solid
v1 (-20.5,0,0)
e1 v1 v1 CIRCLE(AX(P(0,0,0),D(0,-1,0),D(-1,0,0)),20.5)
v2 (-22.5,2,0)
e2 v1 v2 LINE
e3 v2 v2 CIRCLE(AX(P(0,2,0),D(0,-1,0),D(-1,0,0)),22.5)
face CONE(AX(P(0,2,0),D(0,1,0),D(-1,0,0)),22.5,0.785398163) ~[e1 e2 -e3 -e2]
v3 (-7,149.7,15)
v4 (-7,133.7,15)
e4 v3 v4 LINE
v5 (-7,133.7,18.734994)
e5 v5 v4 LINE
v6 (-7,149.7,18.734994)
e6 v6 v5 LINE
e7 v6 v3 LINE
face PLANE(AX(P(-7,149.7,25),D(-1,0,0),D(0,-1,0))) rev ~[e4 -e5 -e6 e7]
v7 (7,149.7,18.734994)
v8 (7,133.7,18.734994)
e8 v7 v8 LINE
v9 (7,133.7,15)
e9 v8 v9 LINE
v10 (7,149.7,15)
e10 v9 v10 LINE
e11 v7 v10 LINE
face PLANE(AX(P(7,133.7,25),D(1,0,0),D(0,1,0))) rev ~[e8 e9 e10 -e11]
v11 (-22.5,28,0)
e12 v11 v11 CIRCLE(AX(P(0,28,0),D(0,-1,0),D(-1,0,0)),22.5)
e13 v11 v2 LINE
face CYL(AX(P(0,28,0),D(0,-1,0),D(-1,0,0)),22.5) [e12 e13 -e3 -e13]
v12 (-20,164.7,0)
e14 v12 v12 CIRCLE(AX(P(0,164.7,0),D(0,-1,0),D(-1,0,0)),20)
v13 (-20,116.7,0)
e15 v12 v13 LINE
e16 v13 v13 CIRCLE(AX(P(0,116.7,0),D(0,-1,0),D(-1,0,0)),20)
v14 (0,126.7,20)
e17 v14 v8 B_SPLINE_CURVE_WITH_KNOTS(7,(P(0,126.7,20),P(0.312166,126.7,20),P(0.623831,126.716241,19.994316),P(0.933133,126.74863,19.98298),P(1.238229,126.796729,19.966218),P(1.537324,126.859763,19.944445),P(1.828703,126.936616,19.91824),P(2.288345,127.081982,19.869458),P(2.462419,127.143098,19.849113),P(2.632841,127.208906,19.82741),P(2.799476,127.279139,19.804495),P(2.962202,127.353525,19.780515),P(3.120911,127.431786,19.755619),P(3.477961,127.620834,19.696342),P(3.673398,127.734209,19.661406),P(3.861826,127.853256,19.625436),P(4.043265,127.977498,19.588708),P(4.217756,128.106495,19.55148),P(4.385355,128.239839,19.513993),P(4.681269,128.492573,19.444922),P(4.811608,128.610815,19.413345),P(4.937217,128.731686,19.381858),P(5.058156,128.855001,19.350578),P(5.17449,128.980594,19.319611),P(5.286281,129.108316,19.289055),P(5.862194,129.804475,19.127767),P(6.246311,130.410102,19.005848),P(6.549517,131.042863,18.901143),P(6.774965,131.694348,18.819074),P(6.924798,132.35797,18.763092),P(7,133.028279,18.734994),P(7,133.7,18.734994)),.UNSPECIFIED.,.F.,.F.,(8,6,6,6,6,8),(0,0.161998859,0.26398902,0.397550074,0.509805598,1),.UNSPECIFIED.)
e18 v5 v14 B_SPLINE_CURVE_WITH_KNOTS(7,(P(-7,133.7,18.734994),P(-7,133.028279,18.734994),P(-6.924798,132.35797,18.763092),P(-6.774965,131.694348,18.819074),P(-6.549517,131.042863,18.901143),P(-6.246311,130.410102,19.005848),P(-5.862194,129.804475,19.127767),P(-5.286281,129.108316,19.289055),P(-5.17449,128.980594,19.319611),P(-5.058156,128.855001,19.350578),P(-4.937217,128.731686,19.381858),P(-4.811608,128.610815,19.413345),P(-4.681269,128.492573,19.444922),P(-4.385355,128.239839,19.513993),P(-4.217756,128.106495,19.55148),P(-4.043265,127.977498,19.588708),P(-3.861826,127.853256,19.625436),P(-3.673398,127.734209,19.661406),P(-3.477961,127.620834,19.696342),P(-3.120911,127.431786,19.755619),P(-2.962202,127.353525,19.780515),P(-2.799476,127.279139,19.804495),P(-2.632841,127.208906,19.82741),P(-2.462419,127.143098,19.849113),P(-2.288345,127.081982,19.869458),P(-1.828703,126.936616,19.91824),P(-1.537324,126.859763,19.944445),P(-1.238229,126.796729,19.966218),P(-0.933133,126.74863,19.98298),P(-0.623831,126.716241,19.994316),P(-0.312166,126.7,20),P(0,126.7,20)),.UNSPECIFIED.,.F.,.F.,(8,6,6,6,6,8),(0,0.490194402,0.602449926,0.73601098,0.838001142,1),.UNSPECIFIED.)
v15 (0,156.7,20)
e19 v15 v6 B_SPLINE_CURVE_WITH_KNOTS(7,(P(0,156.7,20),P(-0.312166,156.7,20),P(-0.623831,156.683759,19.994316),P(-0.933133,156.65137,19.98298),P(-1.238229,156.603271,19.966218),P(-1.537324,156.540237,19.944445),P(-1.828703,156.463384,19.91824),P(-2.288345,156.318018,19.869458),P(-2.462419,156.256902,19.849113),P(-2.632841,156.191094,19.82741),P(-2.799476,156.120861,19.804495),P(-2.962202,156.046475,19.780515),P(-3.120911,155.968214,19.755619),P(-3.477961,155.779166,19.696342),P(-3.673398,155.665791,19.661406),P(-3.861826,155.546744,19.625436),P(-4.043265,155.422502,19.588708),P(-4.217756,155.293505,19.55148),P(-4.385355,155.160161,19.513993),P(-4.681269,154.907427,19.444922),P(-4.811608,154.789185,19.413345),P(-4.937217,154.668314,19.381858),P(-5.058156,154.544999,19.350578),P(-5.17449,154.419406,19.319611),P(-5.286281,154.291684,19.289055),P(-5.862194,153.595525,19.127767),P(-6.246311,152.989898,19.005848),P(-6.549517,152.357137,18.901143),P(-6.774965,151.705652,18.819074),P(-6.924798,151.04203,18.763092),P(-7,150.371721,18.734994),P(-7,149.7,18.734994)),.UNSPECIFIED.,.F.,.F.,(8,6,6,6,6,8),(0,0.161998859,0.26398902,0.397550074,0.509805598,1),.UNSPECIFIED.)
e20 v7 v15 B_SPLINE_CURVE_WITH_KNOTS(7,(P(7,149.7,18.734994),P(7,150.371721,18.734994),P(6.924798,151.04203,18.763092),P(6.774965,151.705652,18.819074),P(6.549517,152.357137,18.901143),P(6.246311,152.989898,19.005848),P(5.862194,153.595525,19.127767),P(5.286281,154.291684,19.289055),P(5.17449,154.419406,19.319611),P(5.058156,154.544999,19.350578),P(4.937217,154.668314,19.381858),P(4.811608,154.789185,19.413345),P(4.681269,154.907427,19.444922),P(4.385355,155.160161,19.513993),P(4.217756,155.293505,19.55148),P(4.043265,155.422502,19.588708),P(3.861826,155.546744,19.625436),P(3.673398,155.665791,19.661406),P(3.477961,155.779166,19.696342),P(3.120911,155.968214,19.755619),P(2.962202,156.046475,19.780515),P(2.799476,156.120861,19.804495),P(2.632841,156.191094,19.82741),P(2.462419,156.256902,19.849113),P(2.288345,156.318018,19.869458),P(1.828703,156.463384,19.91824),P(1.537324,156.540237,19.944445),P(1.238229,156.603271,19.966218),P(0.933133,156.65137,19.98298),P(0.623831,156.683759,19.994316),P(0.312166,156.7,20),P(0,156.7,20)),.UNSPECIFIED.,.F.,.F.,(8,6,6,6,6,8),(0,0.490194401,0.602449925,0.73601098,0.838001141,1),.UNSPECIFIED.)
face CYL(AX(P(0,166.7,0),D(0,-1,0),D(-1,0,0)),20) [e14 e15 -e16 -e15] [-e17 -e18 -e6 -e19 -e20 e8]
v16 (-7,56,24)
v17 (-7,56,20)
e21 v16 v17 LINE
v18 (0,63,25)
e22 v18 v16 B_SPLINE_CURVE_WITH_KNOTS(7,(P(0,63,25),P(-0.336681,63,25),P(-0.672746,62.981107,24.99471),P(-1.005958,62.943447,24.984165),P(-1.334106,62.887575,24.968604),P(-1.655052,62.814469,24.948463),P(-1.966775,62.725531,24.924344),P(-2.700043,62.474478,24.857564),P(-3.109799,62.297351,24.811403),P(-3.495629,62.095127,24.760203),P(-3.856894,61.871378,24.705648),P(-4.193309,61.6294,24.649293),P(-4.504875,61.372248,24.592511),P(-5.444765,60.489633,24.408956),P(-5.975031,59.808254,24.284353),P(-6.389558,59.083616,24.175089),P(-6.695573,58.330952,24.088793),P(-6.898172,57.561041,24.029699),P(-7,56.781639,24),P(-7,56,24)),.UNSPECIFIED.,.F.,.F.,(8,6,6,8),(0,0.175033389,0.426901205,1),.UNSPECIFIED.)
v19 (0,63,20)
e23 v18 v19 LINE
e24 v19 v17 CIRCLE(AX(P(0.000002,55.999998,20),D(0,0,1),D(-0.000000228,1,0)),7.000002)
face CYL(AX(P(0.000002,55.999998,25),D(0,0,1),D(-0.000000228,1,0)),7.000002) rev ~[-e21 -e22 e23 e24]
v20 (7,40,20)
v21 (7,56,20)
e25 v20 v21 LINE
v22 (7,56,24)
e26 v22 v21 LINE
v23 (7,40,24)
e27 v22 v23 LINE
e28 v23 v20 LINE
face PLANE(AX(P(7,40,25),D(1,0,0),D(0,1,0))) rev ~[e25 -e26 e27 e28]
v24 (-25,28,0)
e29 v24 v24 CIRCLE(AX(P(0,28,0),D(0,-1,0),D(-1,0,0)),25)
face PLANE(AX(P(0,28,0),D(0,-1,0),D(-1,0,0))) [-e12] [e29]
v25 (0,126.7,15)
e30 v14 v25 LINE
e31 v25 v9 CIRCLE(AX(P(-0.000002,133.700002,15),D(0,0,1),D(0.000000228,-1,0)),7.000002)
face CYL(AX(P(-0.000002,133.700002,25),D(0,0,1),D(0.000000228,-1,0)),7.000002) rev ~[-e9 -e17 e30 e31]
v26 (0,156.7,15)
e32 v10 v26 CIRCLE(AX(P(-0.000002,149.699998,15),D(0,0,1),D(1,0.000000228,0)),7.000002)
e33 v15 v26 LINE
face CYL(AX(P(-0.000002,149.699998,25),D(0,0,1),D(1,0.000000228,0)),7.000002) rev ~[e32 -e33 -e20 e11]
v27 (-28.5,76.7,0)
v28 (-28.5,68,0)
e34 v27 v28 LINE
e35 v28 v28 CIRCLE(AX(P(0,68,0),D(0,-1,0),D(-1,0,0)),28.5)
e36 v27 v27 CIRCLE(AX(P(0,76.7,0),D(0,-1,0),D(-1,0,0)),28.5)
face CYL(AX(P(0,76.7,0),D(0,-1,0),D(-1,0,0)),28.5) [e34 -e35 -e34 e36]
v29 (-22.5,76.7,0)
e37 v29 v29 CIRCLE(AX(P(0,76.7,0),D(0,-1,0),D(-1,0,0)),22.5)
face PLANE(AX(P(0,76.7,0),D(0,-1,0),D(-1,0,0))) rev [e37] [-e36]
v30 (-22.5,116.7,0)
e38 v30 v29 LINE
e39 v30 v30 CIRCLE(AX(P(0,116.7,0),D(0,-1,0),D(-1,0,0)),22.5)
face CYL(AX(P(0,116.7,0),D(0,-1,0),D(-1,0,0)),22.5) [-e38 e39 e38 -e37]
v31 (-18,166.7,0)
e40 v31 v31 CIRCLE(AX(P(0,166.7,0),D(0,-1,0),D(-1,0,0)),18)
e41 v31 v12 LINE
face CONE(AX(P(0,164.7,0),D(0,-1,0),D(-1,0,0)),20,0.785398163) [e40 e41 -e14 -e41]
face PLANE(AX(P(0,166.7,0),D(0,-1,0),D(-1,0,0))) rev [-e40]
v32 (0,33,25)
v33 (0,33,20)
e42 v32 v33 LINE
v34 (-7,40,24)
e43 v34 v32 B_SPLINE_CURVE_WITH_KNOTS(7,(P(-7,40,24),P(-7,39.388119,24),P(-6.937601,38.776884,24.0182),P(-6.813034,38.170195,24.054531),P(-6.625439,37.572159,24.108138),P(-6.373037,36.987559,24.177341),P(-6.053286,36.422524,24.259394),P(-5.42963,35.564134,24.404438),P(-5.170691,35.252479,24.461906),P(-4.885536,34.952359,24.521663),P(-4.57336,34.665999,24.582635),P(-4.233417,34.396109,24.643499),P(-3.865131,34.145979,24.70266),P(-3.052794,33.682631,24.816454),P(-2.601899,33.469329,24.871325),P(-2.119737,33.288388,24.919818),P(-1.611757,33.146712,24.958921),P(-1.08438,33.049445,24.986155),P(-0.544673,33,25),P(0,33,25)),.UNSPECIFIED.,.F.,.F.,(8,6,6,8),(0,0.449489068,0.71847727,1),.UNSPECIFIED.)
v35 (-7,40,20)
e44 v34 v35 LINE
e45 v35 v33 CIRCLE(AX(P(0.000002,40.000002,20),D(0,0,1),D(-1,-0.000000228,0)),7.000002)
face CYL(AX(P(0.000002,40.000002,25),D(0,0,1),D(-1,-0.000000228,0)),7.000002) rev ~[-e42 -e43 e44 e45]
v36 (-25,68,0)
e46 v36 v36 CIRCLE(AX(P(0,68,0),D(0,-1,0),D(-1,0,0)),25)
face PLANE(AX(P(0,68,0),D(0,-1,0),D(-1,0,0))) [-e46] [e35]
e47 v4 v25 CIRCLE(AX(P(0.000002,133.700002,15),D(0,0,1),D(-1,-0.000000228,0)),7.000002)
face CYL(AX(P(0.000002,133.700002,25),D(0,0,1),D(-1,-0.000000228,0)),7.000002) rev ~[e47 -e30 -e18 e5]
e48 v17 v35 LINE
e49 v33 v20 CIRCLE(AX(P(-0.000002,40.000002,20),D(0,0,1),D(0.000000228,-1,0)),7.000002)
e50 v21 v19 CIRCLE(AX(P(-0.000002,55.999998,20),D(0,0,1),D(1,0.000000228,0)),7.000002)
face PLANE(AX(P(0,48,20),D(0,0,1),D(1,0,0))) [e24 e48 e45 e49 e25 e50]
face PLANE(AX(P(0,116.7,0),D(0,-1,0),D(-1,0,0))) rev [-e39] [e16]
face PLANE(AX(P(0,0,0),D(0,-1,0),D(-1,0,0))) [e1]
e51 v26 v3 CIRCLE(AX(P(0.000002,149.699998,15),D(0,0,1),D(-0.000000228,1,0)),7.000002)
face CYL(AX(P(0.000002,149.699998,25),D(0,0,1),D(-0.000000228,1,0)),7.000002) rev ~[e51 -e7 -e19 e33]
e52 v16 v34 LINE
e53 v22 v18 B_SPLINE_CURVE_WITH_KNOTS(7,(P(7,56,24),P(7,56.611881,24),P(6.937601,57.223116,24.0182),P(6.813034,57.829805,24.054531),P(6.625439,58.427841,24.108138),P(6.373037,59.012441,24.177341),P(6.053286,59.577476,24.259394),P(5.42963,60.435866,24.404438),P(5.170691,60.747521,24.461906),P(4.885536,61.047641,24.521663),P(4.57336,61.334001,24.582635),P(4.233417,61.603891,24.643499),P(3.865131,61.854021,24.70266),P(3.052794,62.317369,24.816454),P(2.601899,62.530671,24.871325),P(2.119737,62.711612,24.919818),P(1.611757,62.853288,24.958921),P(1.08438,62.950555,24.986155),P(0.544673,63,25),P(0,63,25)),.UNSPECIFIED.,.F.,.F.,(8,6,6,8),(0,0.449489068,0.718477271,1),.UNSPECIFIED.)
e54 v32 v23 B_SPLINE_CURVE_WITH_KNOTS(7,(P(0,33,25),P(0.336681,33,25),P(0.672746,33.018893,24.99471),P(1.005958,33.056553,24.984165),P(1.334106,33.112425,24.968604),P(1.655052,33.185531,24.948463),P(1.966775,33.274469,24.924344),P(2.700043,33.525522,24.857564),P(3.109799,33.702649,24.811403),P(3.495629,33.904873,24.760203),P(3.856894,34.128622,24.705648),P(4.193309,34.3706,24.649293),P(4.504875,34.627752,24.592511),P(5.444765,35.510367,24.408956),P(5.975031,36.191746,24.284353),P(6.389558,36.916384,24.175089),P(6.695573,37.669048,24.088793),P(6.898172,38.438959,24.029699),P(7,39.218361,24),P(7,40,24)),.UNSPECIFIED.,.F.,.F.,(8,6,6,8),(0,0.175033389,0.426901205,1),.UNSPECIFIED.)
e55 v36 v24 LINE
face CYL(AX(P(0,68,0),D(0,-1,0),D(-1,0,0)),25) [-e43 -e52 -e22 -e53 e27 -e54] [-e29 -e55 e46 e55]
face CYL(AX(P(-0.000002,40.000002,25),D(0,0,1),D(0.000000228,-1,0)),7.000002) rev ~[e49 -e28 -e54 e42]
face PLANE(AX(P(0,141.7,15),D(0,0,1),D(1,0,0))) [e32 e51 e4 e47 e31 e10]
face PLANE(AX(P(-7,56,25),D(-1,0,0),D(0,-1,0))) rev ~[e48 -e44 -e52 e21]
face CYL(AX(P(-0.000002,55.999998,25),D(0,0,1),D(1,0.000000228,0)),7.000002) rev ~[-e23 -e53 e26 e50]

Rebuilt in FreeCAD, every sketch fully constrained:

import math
import FreeCAD as App
import Part
import Sketcher
from FreeCAD import Vector


def edges_at(feature, points):
    """Names of the edges that pass closest to the given points."""
    edges = feature.Shape.Edges
    near = lambda p: min(range(len(edges)), key=lambda i: edges[i].distToShape(Part.Vertex(*p))[0])
    return sorted({f"Edge{near(p) + 1}" for p in points})


def add_polygon(sketch, points):
    """Adds a closed chain of lines whose ends are joined by coincident constraints."""
    first, n = sketch.GeometryCount, len(points)
    for a, b in zip(points, points[1:] + points[:1]):
        sketch.addGeometry(Part.LineSegment(App.Vector(*a, 0), App.Vector(*b, 0)), False)
    for i in range(n):
        sketch.addConstraint(Sketcher.Constraint("Coincident", first + i, 2, first + (i + 1) % n, 1))

doc = App.newDocument("Part")
params = doc.addObject("Spreadsheet::Sheet", "Params")
for row, (alias, value) in enumerate([
    ("sketch1_width", "20 mm"),
    ("sketch1_width2", "6 mm"),
    ("sketch1_height", "50 mm"),
    ("sketch1_height2", "40 mm"),
    ("sketch1_height3", "28 mm"),
    ("revolution_angle", "360 deg"),
    ("chamfer_size", "2 mm"),
    ("sketch2_radius", "7.000002 mm"),
    ("sketch2_height", "16 mm"),
    ("pocket1_length", "5 mm"),
    ("sketch3_radius", "7.000002 mm"),
    ("sketch3_height", "16 mm"),
    ("pocket2_length", "10 mm"),
], start=1):
    params.set(f"A{row}", alias)
    params.set(f"B{row}", "=" + value)
    params.setAlias(f"B{row}", alias)

body = doc.addObject("PartDesign::Body", "Body")

# Sketch on XY plane
sketch1 = doc.addObject("Sketcher::SketchObject", "Sketch")
body.addObject(sketch1)
sketch1.AttachmentSupport = (doc.XY_Plane, [""])
sketch1.MapMode = "FlatFace"
add_polygon(sketch1, [(-22.5, 0), (0, 0), (0, 166.7), (-20, 166.7), (-20, 116.7), (-22.5, 116.7), (-22.5, 76.7), (-28.5, 76.7), (-28.5, 68), (-25, 68), (-25, 28), (-22.5, 28)])  # lines 0-11
sketch1.addConstraint([
    Sketcher.Constraint("Horizontal", 0),
    Sketcher.Constraint("Vertical", 1),
    Sketcher.Constraint("Horizontal", 2),
    Sketcher.Constraint("Vertical", 3),
    Sketcher.Constraint("Horizontal", 4),
    Sketcher.Constraint("Vertical", 5),
    Sketcher.Constraint("Horizontal", 6),
    Sketcher.Constraint("Vertical", 7),
    Sketcher.Constraint("Horizontal", 8),
    Sketcher.Constraint("Vertical", 9),
    Sketcher.Constraint("Horizontal", 10),
    Sketcher.Constraint("Vertical", 11),
    Sketcher.Constraint("Coincident", 0, 2, -1, 1),
    Sketcher.Constraint("Vertical", 5, 2, 10, 2),
    Sketcher.Constraint("Equal", 4, 10),
    Sketcher.Constraint("Equal", 5, 9),
    Sketcher.Constraint("DistanceX", 2, 2, 2, 1, 20.0),
    Sketcher.Constraint("DistanceX", 6, 2, 6, 1, 6.0),
    Sketcher.Constraint("DistanceY", 3, 2, 3, 1, 50.0),
    Sketcher.Constraint("DistanceY", 5, 2, 5, 1, 40.0),
    Sketcher.Constraint("DistanceY", 11, 2, 11, 1, 28.0),
    Sketcher.Constraint("DistanceX", 0, 1, 0, 2, 22.5),
    Sketcher.Constraint("DistanceY", 1, 1, 1, 2, 166.7),
])
sketch1.setExpression("Constraints[28]", "Params.sketch1_width")
sketch1.setExpression("Constraints[29]", "Params.sketch1_width2")
sketch1.setExpression("Constraints[30]", "Params.sketch1_height")
sketch1.setExpression("Constraints[31]", "Params.sketch1_height2")
sketch1.setExpression("Constraints[32]", "Params.sketch1_height3")
revolution = doc.addObject("PartDesign::Revolution", "Revolution")
body.addObject(revolution)
revolution.Profile = sketch1
revolution.ReferenceAxis = (sketch1, ["V_Axis"])
revolution.setExpression("Angle", "Params.revolution_angle")
doc.recompute()

chamfer = doc.addObject("PartDesign::Chamfer", "Chamfer")
body.addObject(chamfer)
chamfer.Base = (revolution, edges_at(revolution, [(20, 166.7, 0), (22.5, 0, 0)]))
chamfer.setExpression("Size", "Params.chamfer_size")

# Sketch on XY plane
sketch2 = doc.addObject("Sketcher::SketchObject", "Sketch001")
body.addObject(sketch2)
sketch2.AttachmentSupport = (doc.XY_Plane, [""])
sketch2.MapMode = "FlatFace"
sketch2.AttachmentOffset = App.Placement(Vector(0, 0, 25), App.Rotation())
sketch2.addGeometry([
    Part.LineSegment(Vector(7, 40, 0), Vector(7, 56, 0)),  # 0
    Part.ArcOfCircle(Part.Circle(Vector(0, 56, 0), Vector(0, 0, 1), 7), math.radians(0), math.radians(90)),  # 1
    Part.ArcOfCircle(Part.Circle(Vector(0, 56, 0), Vector(0, 0, 1), 7), math.radians(90), math.radians(180)),  # 2
    Part.LineSegment(Vector(-7, 56, 0), Vector(-7, 40, 0)),  # 3
    Part.ArcOfCircle(Part.Circle(Vector(0, 40, 0), Vector(0, 0, 1), 7), math.radians(-180), math.radians(-90)),  # 4
    Part.ArcOfCircle(Part.Circle(Vector(0, 40, 0), Vector(0, 0, 1), 7), math.radians(-90), math.radians(0)),  # 5
], False)
sketch2.addConstraint([
    Sketcher.Constraint("Tangent", 0, 2, 1, 1),
    Sketcher.Constraint("Tangent", 1, 2, 2, 1),
    Sketcher.Constraint("Tangent", 2, 2, 3, 1),
    Sketcher.Constraint("Tangent", 3, 2, 4, 1),
    Sketcher.Constraint("Tangent", 4, 2, 5, 1),
    Sketcher.Constraint("Tangent", 5, 2, 0, 1),
    Sketcher.Constraint("Vertical", 0),
    Sketcher.Constraint("Vertical", 3),
    Sketcher.Constraint("Equal", 1, 2),
    Sketcher.Constraint("Equal", 2, 4),
    Sketcher.Constraint("PointOnObject", 1, 3, -2),
    Sketcher.Constraint("PointOnObject", 1, 2, -2),
    Sketcher.Constraint("PointOnObject", 4, 2, -2),
    Sketcher.Constraint("Radius", 1, 7.000002),
    Sketcher.Constraint("DistanceY", 0, 1, 0, 2, 16.0),
    Sketcher.Constraint("DistanceY", -1, 1, 1, 3, 55.999998),
])
sketch2.setExpression("Constraints[13]", "Params.sketch2_radius")
sketch2.setExpression("Constraints[14]", "Params.sketch2_height")
pocket1 = doc.addObject("PartDesign::Pocket", "Pocket")
body.addObject(pocket1)
pocket1.Profile = sketch2
pocket1.setExpression("Length", "Params.pocket1_length")

# Sketch on XY plane
sketch3 = doc.addObject("Sketcher::SketchObject", "Sketch002")
body.addObject(sketch3)
sketch3.AttachmentSupport = (doc.XY_Plane, [""])
sketch3.MapMode = "FlatFace"
sketch3.AttachmentOffset = App.Placement(Vector(0, 0, 25), App.Rotation())
sketch3.addGeometry([
    Part.LineSegment(Vector(7, 134, 0), Vector(7, 150, 0)),  # 0
    Part.ArcOfCircle(Part.Circle(Vector(0, 150, 0), Vector(0, 0, 1), 7), math.radians(0), math.radians(90)),  # 1
    Part.ArcOfCircle(Part.Circle(Vector(0, 150, 0), Vector(0, 0, 1), 7), math.radians(90), math.radians(180)),  # 2
    Part.LineSegment(Vector(-7, 150, 0), Vector(-7, 134, 0)),  # 3
    Part.ArcOfCircle(Part.Circle(Vector(0, 134, 0), Vector(0, 0, 1), 7), math.radians(-180), math.radians(-90)),  # 4
    Part.ArcOfCircle(Part.Circle(Vector(0, 134, 0), Vector(0, 0, 1), 7), math.radians(-90), math.radians(0)),  # 5
], False)
sketch3.addConstraint([
    Sketcher.Constraint("Tangent", 0, 2, 1, 1),
    Sketcher.Constraint("Tangent", 1, 2, 2, 1),
    Sketcher.Constraint("Tangent", 2, 2, 3, 1),
    Sketcher.Constraint("Tangent", 3, 2, 4, 1),
    Sketcher.Constraint("Tangent", 4, 2, 5, 1),
    Sketcher.Constraint("Tangent", 5, 2, 0, 1),
    Sketcher.Constraint("Vertical", 0),
    Sketcher.Constraint("Vertical", 3),
    Sketcher.Constraint("Equal", 1, 2),
    Sketcher.Constraint("Equal", 2, 4),
    Sketcher.Constraint("PointOnObject", 1, 3, -2),
    Sketcher.Constraint("PointOnObject", 1, 2, -2),
    Sketcher.Constraint("PointOnObject", 4, 2, -2),
    Sketcher.Constraint("Radius", 1, 7.000002),
    Sketcher.Constraint("DistanceY", 0, 1, 0, 2, 16.0),
    Sketcher.Constraint("DistanceY", -1, 1, 1, 3, 149.699998),
])
sketch3.setExpression("Constraints[13]", "Params.sketch3_radius")
sketch3.setExpression("Constraints[14]", "Params.sketch3_height")
pocket2 = doc.addObject("PartDesign::Pocket", "Pocket001")
body.addObject(pocket2)
pocket2.Profile = sketch3
pocket2.setExpression("Length", "Params.pocket2_length")

doc.recompute()
